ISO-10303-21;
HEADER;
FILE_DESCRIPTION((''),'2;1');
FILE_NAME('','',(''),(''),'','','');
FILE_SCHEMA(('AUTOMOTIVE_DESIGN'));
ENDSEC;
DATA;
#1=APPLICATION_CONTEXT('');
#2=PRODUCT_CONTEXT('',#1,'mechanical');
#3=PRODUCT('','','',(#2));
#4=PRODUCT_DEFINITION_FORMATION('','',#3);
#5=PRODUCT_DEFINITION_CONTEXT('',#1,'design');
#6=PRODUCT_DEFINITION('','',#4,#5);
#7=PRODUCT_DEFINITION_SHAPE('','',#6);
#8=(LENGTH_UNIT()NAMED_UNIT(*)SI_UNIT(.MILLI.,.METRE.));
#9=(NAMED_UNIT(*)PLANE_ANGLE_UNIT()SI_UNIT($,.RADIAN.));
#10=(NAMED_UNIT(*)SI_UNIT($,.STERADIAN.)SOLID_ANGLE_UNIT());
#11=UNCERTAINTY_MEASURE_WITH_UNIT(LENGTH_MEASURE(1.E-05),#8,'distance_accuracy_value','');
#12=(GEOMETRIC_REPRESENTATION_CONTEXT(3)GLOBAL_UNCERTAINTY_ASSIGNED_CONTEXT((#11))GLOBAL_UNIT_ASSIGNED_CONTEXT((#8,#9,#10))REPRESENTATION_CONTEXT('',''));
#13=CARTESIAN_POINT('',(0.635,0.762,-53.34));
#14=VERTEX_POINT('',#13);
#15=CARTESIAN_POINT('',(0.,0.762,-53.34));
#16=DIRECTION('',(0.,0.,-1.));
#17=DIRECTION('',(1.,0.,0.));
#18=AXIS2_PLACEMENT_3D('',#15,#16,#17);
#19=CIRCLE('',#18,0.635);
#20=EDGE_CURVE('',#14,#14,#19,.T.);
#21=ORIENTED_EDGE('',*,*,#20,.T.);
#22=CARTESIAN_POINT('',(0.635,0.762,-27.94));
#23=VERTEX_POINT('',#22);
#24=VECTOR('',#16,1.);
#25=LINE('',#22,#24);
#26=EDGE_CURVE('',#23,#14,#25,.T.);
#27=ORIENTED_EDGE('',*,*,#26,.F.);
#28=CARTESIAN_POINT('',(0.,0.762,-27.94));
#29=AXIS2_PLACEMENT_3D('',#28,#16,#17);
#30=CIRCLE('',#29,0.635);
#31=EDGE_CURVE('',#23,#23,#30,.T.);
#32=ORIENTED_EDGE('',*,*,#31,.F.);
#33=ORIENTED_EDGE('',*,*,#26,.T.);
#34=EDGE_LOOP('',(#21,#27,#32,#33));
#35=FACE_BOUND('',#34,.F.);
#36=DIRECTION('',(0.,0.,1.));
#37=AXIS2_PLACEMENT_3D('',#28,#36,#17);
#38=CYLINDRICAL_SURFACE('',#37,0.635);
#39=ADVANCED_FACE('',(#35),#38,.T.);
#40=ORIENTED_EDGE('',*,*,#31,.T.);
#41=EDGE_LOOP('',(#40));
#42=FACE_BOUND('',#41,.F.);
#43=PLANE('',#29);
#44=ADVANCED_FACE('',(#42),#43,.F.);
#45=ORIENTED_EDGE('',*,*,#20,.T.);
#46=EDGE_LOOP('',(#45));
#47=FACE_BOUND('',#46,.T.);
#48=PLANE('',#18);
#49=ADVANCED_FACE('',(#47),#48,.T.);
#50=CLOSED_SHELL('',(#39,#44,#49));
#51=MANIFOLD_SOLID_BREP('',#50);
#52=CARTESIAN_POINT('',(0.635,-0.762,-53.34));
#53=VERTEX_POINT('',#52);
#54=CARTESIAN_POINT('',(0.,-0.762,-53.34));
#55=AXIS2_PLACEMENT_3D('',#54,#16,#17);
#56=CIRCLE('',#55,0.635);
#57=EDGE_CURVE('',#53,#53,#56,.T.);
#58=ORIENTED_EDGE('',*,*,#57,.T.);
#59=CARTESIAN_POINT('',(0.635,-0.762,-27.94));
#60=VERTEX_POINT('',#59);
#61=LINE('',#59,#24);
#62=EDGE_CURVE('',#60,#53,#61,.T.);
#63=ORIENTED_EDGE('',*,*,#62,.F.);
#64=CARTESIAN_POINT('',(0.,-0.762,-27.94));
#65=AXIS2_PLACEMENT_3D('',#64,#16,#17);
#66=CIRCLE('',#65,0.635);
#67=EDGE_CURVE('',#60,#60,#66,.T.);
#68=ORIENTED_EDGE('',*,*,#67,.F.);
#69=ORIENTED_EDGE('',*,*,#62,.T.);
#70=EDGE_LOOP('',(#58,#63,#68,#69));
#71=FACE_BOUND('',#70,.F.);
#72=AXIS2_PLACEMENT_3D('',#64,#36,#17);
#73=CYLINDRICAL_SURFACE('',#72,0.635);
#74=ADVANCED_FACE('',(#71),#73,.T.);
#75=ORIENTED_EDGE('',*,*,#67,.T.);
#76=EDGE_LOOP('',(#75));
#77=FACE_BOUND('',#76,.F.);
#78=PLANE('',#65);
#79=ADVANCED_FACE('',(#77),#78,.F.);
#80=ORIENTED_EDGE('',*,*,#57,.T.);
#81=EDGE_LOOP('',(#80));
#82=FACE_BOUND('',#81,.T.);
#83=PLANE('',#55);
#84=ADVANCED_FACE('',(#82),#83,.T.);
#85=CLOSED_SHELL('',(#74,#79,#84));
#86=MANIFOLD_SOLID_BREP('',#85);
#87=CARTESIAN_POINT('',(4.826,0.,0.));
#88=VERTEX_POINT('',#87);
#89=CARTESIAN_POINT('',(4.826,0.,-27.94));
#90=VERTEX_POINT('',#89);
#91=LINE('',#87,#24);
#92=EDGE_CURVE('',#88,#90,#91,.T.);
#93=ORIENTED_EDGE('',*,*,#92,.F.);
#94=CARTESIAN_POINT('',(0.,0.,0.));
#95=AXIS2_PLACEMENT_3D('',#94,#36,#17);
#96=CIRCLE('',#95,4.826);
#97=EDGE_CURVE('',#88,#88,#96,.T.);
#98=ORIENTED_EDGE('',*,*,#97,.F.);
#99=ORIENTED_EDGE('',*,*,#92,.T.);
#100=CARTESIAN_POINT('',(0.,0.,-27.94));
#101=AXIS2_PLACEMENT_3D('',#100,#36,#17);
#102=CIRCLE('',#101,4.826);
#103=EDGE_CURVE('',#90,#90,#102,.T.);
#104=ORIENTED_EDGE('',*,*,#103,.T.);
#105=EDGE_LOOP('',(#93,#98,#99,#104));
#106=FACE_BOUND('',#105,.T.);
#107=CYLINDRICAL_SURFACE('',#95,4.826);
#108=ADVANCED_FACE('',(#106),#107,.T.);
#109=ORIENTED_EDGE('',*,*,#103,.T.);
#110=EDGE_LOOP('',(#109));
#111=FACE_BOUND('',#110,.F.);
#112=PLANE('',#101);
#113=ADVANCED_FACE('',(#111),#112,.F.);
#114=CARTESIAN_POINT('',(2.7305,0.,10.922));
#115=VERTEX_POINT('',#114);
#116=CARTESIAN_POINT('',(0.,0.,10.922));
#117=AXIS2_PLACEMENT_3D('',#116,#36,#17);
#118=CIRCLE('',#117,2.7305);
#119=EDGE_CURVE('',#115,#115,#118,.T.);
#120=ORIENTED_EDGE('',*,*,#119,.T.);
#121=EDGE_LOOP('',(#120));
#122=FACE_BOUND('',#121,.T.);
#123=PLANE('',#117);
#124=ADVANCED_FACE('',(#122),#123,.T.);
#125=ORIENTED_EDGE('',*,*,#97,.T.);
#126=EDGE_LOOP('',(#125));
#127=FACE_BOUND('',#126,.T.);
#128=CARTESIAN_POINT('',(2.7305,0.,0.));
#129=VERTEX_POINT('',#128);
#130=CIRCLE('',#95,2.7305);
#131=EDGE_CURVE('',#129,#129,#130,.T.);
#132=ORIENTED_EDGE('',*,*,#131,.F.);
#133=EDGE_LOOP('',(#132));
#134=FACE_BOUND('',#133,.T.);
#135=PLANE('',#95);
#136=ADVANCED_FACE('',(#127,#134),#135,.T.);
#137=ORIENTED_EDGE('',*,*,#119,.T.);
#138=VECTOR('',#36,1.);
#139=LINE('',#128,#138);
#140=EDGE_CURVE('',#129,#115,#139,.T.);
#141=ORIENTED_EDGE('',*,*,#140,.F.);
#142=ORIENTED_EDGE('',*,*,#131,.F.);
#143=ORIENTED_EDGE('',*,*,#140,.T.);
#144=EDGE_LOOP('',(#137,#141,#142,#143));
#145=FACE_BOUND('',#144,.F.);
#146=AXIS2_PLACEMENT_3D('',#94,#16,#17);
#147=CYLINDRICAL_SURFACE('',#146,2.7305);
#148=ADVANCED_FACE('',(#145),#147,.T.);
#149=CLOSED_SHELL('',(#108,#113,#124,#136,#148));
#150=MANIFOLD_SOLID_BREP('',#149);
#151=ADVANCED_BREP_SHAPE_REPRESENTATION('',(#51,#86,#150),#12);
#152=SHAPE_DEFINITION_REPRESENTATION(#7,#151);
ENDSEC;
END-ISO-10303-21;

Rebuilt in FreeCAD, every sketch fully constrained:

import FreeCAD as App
import Part
import Sketcher
from FreeCAD import Vector
Q = App.Units.Quantity

doc = App.newDocument("Part")
body = doc.addObject("PartDesign::Body", "Body")

sketch1 = body.newObject("Sketcher::SketchObject", "Sketch")
sketch1.AttachmentSupport = (doc.getObject("XY_Plane"), [""])
sketch1.MapMode = "FlatFace"
sketch1.addGeometry(Part.Circle(Vector(0, 0, 0), Vector(0, 0, 1), 2.7305), False)
sketch1.addConstraint([
    Sketcher.Constraint("Coincident", 0, 3, -1, 1),
    Sketcher.Constraint("Diameter", 0, Q("0.215 in")),
])
pad1 = body.newObject("PartDesign::Pad", "Pad")
pad1.Profile = sketch1
pad1.Length = Q("0.43 in")

sketch2 = body.newObject("Sketcher::SketchObject", "Sketch001")
sketch2.AttachmentSupport = (doc.getObject("XY_Plane"), [""])
sketch2.MapMode = "FlatFace"
sketch2.addGeometry(Part.Circle(Vector(0, 0, 0), Vector(0, 0, 1), 4.826), False)
sketch2.addConstraint([
    Sketcher.Constraint("Coincident", 0, 3, -1, 1),
    Sketcher.Constraint("Diameter", 0, Q("0.38 in")),
])
pad2 = body.newObject("PartDesign::Pad", "Pad001")
pad2.Profile = sketch2
pad2.Length = Q("1.1 in")
pad2.Reversed = True
body2 = doc.addObject("PartDesign::Body", "Body001")
body2.AllowCompound = True

sketch3 = body2.newObject("Sketcher::SketchObject", "Sketch002")
sketch3.AttachmentSupport = (doc.getObject("XY_Plane001"), [""])
sketch3.MapMode = "FlatFace"
sketch3.AttachmentOffset = App.Placement(Vector(0, 0, -1.1 * 25.4), App.Rotation())
sketch3.addGeometry([
    Part.Circle(Vector(0, 0.762, 0), Vector(0, 0, 1), 0.635),
    Part.Circle(Vector(0, -0.762, 0), Vector(0, 0, 1), 0.635),
], False)
sketch3.addConstraint([
    Sketcher.Constraint("Equal", 0, 1),
    Sketcher.Constraint("Symmetric", 0, 3, 1, 3, -1, 1),
    Sketcher.Constraint("PointOnObject", 0, 3, -2),
    Sketcher.Constraint("Diameter", 0, Q("0.05 in")),
    Sketcher.Constraint("DistanceY", -1, 1, 0, 3, Q("0.03 in")),
])
pad3 = body2.newObject("PartDesign::Pad", "Pad002")
pad3.Profile = sketch3
pad3.Length = Q("1 in")
pad3.Reversed = True

doc.recompute()
